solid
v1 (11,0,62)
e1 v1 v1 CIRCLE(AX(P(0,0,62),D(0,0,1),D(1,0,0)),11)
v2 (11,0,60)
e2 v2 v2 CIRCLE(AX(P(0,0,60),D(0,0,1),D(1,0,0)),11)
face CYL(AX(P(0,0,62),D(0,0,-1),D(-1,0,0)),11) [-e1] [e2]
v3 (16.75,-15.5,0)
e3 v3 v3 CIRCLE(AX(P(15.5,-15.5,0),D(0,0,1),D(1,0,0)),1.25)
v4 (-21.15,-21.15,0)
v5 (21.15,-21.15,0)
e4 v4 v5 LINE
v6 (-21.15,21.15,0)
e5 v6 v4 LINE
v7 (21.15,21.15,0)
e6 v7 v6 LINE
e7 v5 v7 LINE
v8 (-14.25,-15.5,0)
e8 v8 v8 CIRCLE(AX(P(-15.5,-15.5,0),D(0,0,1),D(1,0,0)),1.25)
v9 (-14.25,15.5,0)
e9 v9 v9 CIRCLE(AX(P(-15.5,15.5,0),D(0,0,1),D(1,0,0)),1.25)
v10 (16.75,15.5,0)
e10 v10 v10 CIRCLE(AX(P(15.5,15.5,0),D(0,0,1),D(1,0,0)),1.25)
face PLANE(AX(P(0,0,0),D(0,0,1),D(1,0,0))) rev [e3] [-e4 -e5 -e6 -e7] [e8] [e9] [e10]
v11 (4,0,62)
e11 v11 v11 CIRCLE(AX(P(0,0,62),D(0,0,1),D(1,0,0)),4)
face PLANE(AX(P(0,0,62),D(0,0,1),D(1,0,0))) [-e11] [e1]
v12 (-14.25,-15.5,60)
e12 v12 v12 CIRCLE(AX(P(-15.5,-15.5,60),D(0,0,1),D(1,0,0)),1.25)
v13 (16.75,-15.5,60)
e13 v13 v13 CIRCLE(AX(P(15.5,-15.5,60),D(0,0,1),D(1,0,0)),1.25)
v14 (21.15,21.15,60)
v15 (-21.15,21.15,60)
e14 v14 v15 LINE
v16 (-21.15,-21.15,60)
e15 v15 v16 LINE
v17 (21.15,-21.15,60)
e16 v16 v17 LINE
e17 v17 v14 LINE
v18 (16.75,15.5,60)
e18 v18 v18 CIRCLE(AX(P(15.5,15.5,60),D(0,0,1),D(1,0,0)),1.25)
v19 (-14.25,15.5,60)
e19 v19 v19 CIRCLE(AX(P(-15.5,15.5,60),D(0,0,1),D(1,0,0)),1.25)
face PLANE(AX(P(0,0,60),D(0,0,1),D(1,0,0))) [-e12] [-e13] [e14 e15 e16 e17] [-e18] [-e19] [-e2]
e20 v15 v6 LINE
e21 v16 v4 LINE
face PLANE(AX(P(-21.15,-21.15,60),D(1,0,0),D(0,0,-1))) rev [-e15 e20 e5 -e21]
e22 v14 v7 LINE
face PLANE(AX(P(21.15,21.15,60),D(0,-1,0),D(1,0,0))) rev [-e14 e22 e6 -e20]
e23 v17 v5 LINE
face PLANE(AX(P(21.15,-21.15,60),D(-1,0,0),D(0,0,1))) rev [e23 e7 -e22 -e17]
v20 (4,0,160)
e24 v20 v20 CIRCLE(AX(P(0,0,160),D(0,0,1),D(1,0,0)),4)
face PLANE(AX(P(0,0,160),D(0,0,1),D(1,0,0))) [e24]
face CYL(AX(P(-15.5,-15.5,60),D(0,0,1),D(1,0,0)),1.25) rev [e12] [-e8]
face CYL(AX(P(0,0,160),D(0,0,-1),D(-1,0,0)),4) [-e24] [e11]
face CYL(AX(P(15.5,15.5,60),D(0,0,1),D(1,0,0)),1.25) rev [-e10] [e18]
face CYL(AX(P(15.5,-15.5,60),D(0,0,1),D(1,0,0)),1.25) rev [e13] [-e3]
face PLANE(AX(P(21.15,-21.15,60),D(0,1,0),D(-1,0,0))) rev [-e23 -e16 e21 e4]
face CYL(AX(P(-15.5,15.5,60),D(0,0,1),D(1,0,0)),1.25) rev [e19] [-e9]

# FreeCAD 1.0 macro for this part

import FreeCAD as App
import Part
import Sketcher

V = App.Vector


def add_polygon(sketch, points):
    """Adds a closed chain of lines whose ends are joined by coincident constraints."""
    first, n = sketch.GeometryCount, len(points)
    for a, b in zip(points, points[1:] + points[:1]):
        sketch.addGeometry(Part.LineSegment(App.Vector(*a, 0), App.Vector(*b, 0)), False)
    for i in range(n):
        sketch.addConstraint(Sketcher.Constraint("Coincident", first + i, 2, first + (i + 1) % n, 1))

doc = App.newDocument("Part")
body = doc.addObject("PartDesign::Body", "Body")

sketch1 = body.newObject("Sketcher::SketchObject", "Sketch")
sketch1.AttachmentSupport = (doc.getObject("XY_Plane"), [""])
sketch1.MapMode = "FlatFace"
add_polygon(sketch1, [(-21, 21), (-21, -21), (21, -21), (21, 21)])
sketch1.addConstraint([
    Sketcher.Constraint("Vertical", 0),
    Sketcher.Constraint("Horizontal", 1),
    Sketcher.Constraint("Vertical", 2),
    Sketcher.Constraint("Horizontal", 3),
    Sketcher.Constraint("Symmetric", 0, 2, 2, 2, -1, 1),
    Sketcher.Constraint("Equal", 3, 0),
    Sketcher.Constraint("DistanceX", 1, 1, 1, 2, 42.3),
])
pad1 = body.newObject("PartDesign::Pad", "Pad")
pad1.Profile = sketch1
pad1.Length = 60

sketch2 = body.newObject("Sketcher::SketchObject", "Sketch001")
sketch2.AttachmentSupport = (doc.getObject("XY_Plane"), [""])
sketch2.MapMode = "FlatFace"
sketch2.AttachmentOffset = App.Placement(V(0, 0, 60), App.Rotation())
sketch2.addGeometry(Part.Circle(V(0, 0, 0), V(0, 0, 1), 11), False)
sketch2.addConstraint([
    Sketcher.Constraint("Coincident", 0, 3, -1, 1),
    Sketcher.Constraint("Diameter", 0, 22.0),
])
pad2 = body.newObject("PartDesign::Pad", "Pad001")
pad2.Profile = sketch2
pad2.Length = 2

sketch3 = body.newObject("Sketcher::SketchObject", "Sketch002")
sketch3.AttachmentSupport = (doc.getObject("XY_Plane"), [""])
sketch3.MapMode = "FlatFace"
sketch3.AttachmentOffset = App.Placement(V(0, 0, 62), App.Rotation())
sketch3.addGeometry(Part.Circle(V(0, 0, 0), V(0, 0, 1), 4), False)
sketch3.addConstraint([
    Sketcher.Constraint("Coincident", 0, 3, -1, 1),
    Sketcher.Constraint("Diameter", 0, 8.0),
])
pad3 = body.newObject("PartDesign::Pad", "Pad002")
pad3.Profile = sketch3
pad3.Length = 98

sketch4 = body.newObject("Sketcher::SketchObject", "Sketch003")
sketch4.AttachmentSupport = (doc.getObject("XY_Plane"), [""])
sketch4.MapMode = "FlatFace"
sketch4.AttachmentOffset = App.Placement(V(0, 0, 60), App.Rotation())
sketch4.addGeometry([
    Part.Circle(V(-15.5, 15.5, 0), V(0, 0, 1), 1.2),
    Part.Circle(V(15.5, 15.5, 0), V(0, 0, 1), 1.2),
    Part.Circle(V(15.5, -15.5, 0), V(0, 0, 1), 1.2),
    Part.Circle(V(-15.5, -15.5, 0), V(0, 0, 1), 1.2),
], False)
sketch4.addConstraint([
    Sketcher.Constraint("Equal", 0, 1),
    Sketcher.Constraint("Equal", 1, 2),
    Sketcher.Constraint("Equal", 2, 3),
    Sketcher.Constraint("Symmetric", 0, 3, 2, 3, -1, 1),
    Sketcher.Constraint("Symmetric", 1, 3, 3, 3, -1, 1),
    Sketcher.Constraint("Symmetric", 0, 3, 1, 3, -2),
    Sketcher.Constraint("Diameter", 0, 2.5),
    Sketcher.Constraint("DistanceX", 0, 3, 1, 3, 31.0),
    Sketcher.Constraint("DistanceY", 2, 3, 1, 3, 31.0),
])
doc.recompute()
hole = body.newObject("PartDesign::Hole", "Hole")
hole.Profile = sketch4
hole.ThreadType = "None"
hole.Diameter = 2.5
hole.DepthType = "ThroughAll"

doc.recompute()
